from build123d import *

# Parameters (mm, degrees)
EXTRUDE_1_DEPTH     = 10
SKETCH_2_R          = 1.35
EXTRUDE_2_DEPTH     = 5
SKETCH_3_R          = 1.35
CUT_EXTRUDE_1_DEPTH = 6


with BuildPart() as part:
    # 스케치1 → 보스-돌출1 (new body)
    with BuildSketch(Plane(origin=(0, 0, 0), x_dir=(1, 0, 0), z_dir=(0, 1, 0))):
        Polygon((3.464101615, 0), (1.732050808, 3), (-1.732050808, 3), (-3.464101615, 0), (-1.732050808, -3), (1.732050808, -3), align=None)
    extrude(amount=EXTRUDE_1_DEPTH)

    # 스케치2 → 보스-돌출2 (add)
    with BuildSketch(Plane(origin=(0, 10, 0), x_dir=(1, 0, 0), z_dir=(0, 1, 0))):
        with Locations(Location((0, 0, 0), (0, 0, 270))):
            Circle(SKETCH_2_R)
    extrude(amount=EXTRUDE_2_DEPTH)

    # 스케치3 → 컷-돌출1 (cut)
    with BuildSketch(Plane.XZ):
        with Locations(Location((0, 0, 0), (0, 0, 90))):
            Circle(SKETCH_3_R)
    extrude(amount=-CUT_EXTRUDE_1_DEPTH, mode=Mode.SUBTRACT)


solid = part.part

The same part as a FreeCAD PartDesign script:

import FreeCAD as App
import Part
import Sketcher
from FreeCAD import Vector
Q = App.Units.Quantity

doc = App.newDocument("Part")
params = doc.addObject("Spreadsheet::Sheet", "Params")
for row, (alias, value) in enumerate([
    ("pad1_length", "10 mm"),
    ("sketch2_diameter", "2.7 mm"),
    ("pad2_length", "5 mm"),
    ("sketch3_diameter", "2.7 mm"),
    ("pocket1_length", "6 mm"),
], start=1):
    params.set(f"A{row}", alias)
    params.set(f"B{row}", "=" + value)
    params.setAlias(f"B{row}", alias)

body = doc.addObject("PartDesign::Body", "Body")

# Sketch on XZ plane
sketch1 = body.newObject("Sketcher::SketchObject", "Sketch")
sketch1.AttachmentSupport = (doc.getObject("XZ_Plane"), [""])
sketch1.MapMode = "FlatFace"
sketch1.addGeometry([
    Part.LineSegment(Vector(3.5, 0, 0), Vector(1.7, -3, 0)),  # 0
    Part.LineSegment(Vector(1.7, -3, 0), Vector(-1.7, -3, 0)),  # 1
    Part.LineSegment(Vector(-1.7, -3, 0), Vector(-3.5, 0, 0)),  # 2
    Part.LineSegment(Vector(-3.5, 0, 0), Vector(-1.7, 3, 0)),  # 3
    Part.LineSegment(Vector(-1.7, 3, 0), Vector(1.7, 3, 0)),  # 4
    Part.LineSegment(Vector(1.7, 3, 0), Vector(3.5, 0, 0)),  # 5
], False)
sketch1.addConstraint([
    Sketcher.Constraint("Coincident", 0, 2, 1, 1),
    Sketcher.Constraint("Coincident", 1, 2, 2, 1),
    Sketcher.Constraint("Coincident", 2, 2, 3, 1),
    Sketcher.Constraint("Coincident", 3, 2, 4, 1),
    Sketcher.Constraint("Coincident", 4, 2, 5, 1),
    Sketcher.Constraint("Coincident", 5, 2, 0, 1),
    Sketcher.Constraint("Horizontal", 1),
    Sketcher.Constraint("Horizontal", 4),
    Sketcher.Constraint("Symmetric", 0, 2, 3, 2, -1, 1),
    Sketcher.Constraint("Symmetric", 2, 2, 5, 2, -1, 1),
    Sketcher.Constraint("PointOnObject", 2, 2, -1),
    Sketcher.Constraint("Parallel", 2, 5),
    Sketcher.Constraint("Vertical", 1, 2, 3, 2),
    Sketcher.Constraint("Angle", 0, Q("-120 deg")),
    Sketcher.Constraint("DistanceY", 0, 2, -1, 1, Q("3 mm")),
    Sketcher.Constraint("DistanceX", 1, 2, 1, 1, Q("3.464102 mm")),
])
pad1 = body.newObject("PartDesign::Pad", "Pad")
pad1.Profile = sketch1
pad1.setExpression("Length", "Params.pad1_length")
pad1.Reversed = True

# Sketch on XZ plane
sketch2 = body.newObject("Sketcher::SketchObject", "Sketch001")
sketch2.AttachmentSupport = (doc.getObject("XZ_Plane"), [""])
sketch2.MapMode = "FlatFace"
sketch2.AttachmentOffset = App.Placement(Vector(0, 0, -10), App.Rotation())
sketch2.addGeometry(Part.Circle(Vector(0, 0, 0), Vector(0, 0, 1), 1.4), False)
sketch2.addConstraint([
    Sketcher.Constraint("Coincident", 0, 3, -1, 1),
    Sketcher.Constraint("Diameter", 0, Q("2.7 mm")),
])
sketch2.setExpression("Constraints[1]", "Params.sketch2_diameter")
pad2 = body.newObject("PartDesign::Pad", "Pad001")
pad2.Profile = sketch2
pad2.setExpression("Length", "Params.pad2_length")
pad2.Reversed = True

# Sketch on XZ plane
sketch3 = body.newObject("Sketcher::SketchObject", "Sketch002")
sketch3.AttachmentSupport = (doc.getObject("XZ_Plane"), [""])
sketch3.MapMode = "FlatFace"
sketch3.addGeometry(Part.Circle(Vector(0, 0, 0), Vector(0, 0, 1), 1.4), False)
sketch3.addConstraint([
    Sketcher.Constraint("Coincident", 0, 3, -1, 1),
    Sketcher.Constraint("Diameter", 0, Q("2.7 mm")),
])
sketch3.setExpression("Constraints[1]", "Params.sketch3_diameter")
pocket1 = body.newObject("PartDesign::Pocket", "Pocket")
pocket1.Profile = sketch3
pocket1.setExpression("Length", "Params.pocket1_length")

doc.recompute()
